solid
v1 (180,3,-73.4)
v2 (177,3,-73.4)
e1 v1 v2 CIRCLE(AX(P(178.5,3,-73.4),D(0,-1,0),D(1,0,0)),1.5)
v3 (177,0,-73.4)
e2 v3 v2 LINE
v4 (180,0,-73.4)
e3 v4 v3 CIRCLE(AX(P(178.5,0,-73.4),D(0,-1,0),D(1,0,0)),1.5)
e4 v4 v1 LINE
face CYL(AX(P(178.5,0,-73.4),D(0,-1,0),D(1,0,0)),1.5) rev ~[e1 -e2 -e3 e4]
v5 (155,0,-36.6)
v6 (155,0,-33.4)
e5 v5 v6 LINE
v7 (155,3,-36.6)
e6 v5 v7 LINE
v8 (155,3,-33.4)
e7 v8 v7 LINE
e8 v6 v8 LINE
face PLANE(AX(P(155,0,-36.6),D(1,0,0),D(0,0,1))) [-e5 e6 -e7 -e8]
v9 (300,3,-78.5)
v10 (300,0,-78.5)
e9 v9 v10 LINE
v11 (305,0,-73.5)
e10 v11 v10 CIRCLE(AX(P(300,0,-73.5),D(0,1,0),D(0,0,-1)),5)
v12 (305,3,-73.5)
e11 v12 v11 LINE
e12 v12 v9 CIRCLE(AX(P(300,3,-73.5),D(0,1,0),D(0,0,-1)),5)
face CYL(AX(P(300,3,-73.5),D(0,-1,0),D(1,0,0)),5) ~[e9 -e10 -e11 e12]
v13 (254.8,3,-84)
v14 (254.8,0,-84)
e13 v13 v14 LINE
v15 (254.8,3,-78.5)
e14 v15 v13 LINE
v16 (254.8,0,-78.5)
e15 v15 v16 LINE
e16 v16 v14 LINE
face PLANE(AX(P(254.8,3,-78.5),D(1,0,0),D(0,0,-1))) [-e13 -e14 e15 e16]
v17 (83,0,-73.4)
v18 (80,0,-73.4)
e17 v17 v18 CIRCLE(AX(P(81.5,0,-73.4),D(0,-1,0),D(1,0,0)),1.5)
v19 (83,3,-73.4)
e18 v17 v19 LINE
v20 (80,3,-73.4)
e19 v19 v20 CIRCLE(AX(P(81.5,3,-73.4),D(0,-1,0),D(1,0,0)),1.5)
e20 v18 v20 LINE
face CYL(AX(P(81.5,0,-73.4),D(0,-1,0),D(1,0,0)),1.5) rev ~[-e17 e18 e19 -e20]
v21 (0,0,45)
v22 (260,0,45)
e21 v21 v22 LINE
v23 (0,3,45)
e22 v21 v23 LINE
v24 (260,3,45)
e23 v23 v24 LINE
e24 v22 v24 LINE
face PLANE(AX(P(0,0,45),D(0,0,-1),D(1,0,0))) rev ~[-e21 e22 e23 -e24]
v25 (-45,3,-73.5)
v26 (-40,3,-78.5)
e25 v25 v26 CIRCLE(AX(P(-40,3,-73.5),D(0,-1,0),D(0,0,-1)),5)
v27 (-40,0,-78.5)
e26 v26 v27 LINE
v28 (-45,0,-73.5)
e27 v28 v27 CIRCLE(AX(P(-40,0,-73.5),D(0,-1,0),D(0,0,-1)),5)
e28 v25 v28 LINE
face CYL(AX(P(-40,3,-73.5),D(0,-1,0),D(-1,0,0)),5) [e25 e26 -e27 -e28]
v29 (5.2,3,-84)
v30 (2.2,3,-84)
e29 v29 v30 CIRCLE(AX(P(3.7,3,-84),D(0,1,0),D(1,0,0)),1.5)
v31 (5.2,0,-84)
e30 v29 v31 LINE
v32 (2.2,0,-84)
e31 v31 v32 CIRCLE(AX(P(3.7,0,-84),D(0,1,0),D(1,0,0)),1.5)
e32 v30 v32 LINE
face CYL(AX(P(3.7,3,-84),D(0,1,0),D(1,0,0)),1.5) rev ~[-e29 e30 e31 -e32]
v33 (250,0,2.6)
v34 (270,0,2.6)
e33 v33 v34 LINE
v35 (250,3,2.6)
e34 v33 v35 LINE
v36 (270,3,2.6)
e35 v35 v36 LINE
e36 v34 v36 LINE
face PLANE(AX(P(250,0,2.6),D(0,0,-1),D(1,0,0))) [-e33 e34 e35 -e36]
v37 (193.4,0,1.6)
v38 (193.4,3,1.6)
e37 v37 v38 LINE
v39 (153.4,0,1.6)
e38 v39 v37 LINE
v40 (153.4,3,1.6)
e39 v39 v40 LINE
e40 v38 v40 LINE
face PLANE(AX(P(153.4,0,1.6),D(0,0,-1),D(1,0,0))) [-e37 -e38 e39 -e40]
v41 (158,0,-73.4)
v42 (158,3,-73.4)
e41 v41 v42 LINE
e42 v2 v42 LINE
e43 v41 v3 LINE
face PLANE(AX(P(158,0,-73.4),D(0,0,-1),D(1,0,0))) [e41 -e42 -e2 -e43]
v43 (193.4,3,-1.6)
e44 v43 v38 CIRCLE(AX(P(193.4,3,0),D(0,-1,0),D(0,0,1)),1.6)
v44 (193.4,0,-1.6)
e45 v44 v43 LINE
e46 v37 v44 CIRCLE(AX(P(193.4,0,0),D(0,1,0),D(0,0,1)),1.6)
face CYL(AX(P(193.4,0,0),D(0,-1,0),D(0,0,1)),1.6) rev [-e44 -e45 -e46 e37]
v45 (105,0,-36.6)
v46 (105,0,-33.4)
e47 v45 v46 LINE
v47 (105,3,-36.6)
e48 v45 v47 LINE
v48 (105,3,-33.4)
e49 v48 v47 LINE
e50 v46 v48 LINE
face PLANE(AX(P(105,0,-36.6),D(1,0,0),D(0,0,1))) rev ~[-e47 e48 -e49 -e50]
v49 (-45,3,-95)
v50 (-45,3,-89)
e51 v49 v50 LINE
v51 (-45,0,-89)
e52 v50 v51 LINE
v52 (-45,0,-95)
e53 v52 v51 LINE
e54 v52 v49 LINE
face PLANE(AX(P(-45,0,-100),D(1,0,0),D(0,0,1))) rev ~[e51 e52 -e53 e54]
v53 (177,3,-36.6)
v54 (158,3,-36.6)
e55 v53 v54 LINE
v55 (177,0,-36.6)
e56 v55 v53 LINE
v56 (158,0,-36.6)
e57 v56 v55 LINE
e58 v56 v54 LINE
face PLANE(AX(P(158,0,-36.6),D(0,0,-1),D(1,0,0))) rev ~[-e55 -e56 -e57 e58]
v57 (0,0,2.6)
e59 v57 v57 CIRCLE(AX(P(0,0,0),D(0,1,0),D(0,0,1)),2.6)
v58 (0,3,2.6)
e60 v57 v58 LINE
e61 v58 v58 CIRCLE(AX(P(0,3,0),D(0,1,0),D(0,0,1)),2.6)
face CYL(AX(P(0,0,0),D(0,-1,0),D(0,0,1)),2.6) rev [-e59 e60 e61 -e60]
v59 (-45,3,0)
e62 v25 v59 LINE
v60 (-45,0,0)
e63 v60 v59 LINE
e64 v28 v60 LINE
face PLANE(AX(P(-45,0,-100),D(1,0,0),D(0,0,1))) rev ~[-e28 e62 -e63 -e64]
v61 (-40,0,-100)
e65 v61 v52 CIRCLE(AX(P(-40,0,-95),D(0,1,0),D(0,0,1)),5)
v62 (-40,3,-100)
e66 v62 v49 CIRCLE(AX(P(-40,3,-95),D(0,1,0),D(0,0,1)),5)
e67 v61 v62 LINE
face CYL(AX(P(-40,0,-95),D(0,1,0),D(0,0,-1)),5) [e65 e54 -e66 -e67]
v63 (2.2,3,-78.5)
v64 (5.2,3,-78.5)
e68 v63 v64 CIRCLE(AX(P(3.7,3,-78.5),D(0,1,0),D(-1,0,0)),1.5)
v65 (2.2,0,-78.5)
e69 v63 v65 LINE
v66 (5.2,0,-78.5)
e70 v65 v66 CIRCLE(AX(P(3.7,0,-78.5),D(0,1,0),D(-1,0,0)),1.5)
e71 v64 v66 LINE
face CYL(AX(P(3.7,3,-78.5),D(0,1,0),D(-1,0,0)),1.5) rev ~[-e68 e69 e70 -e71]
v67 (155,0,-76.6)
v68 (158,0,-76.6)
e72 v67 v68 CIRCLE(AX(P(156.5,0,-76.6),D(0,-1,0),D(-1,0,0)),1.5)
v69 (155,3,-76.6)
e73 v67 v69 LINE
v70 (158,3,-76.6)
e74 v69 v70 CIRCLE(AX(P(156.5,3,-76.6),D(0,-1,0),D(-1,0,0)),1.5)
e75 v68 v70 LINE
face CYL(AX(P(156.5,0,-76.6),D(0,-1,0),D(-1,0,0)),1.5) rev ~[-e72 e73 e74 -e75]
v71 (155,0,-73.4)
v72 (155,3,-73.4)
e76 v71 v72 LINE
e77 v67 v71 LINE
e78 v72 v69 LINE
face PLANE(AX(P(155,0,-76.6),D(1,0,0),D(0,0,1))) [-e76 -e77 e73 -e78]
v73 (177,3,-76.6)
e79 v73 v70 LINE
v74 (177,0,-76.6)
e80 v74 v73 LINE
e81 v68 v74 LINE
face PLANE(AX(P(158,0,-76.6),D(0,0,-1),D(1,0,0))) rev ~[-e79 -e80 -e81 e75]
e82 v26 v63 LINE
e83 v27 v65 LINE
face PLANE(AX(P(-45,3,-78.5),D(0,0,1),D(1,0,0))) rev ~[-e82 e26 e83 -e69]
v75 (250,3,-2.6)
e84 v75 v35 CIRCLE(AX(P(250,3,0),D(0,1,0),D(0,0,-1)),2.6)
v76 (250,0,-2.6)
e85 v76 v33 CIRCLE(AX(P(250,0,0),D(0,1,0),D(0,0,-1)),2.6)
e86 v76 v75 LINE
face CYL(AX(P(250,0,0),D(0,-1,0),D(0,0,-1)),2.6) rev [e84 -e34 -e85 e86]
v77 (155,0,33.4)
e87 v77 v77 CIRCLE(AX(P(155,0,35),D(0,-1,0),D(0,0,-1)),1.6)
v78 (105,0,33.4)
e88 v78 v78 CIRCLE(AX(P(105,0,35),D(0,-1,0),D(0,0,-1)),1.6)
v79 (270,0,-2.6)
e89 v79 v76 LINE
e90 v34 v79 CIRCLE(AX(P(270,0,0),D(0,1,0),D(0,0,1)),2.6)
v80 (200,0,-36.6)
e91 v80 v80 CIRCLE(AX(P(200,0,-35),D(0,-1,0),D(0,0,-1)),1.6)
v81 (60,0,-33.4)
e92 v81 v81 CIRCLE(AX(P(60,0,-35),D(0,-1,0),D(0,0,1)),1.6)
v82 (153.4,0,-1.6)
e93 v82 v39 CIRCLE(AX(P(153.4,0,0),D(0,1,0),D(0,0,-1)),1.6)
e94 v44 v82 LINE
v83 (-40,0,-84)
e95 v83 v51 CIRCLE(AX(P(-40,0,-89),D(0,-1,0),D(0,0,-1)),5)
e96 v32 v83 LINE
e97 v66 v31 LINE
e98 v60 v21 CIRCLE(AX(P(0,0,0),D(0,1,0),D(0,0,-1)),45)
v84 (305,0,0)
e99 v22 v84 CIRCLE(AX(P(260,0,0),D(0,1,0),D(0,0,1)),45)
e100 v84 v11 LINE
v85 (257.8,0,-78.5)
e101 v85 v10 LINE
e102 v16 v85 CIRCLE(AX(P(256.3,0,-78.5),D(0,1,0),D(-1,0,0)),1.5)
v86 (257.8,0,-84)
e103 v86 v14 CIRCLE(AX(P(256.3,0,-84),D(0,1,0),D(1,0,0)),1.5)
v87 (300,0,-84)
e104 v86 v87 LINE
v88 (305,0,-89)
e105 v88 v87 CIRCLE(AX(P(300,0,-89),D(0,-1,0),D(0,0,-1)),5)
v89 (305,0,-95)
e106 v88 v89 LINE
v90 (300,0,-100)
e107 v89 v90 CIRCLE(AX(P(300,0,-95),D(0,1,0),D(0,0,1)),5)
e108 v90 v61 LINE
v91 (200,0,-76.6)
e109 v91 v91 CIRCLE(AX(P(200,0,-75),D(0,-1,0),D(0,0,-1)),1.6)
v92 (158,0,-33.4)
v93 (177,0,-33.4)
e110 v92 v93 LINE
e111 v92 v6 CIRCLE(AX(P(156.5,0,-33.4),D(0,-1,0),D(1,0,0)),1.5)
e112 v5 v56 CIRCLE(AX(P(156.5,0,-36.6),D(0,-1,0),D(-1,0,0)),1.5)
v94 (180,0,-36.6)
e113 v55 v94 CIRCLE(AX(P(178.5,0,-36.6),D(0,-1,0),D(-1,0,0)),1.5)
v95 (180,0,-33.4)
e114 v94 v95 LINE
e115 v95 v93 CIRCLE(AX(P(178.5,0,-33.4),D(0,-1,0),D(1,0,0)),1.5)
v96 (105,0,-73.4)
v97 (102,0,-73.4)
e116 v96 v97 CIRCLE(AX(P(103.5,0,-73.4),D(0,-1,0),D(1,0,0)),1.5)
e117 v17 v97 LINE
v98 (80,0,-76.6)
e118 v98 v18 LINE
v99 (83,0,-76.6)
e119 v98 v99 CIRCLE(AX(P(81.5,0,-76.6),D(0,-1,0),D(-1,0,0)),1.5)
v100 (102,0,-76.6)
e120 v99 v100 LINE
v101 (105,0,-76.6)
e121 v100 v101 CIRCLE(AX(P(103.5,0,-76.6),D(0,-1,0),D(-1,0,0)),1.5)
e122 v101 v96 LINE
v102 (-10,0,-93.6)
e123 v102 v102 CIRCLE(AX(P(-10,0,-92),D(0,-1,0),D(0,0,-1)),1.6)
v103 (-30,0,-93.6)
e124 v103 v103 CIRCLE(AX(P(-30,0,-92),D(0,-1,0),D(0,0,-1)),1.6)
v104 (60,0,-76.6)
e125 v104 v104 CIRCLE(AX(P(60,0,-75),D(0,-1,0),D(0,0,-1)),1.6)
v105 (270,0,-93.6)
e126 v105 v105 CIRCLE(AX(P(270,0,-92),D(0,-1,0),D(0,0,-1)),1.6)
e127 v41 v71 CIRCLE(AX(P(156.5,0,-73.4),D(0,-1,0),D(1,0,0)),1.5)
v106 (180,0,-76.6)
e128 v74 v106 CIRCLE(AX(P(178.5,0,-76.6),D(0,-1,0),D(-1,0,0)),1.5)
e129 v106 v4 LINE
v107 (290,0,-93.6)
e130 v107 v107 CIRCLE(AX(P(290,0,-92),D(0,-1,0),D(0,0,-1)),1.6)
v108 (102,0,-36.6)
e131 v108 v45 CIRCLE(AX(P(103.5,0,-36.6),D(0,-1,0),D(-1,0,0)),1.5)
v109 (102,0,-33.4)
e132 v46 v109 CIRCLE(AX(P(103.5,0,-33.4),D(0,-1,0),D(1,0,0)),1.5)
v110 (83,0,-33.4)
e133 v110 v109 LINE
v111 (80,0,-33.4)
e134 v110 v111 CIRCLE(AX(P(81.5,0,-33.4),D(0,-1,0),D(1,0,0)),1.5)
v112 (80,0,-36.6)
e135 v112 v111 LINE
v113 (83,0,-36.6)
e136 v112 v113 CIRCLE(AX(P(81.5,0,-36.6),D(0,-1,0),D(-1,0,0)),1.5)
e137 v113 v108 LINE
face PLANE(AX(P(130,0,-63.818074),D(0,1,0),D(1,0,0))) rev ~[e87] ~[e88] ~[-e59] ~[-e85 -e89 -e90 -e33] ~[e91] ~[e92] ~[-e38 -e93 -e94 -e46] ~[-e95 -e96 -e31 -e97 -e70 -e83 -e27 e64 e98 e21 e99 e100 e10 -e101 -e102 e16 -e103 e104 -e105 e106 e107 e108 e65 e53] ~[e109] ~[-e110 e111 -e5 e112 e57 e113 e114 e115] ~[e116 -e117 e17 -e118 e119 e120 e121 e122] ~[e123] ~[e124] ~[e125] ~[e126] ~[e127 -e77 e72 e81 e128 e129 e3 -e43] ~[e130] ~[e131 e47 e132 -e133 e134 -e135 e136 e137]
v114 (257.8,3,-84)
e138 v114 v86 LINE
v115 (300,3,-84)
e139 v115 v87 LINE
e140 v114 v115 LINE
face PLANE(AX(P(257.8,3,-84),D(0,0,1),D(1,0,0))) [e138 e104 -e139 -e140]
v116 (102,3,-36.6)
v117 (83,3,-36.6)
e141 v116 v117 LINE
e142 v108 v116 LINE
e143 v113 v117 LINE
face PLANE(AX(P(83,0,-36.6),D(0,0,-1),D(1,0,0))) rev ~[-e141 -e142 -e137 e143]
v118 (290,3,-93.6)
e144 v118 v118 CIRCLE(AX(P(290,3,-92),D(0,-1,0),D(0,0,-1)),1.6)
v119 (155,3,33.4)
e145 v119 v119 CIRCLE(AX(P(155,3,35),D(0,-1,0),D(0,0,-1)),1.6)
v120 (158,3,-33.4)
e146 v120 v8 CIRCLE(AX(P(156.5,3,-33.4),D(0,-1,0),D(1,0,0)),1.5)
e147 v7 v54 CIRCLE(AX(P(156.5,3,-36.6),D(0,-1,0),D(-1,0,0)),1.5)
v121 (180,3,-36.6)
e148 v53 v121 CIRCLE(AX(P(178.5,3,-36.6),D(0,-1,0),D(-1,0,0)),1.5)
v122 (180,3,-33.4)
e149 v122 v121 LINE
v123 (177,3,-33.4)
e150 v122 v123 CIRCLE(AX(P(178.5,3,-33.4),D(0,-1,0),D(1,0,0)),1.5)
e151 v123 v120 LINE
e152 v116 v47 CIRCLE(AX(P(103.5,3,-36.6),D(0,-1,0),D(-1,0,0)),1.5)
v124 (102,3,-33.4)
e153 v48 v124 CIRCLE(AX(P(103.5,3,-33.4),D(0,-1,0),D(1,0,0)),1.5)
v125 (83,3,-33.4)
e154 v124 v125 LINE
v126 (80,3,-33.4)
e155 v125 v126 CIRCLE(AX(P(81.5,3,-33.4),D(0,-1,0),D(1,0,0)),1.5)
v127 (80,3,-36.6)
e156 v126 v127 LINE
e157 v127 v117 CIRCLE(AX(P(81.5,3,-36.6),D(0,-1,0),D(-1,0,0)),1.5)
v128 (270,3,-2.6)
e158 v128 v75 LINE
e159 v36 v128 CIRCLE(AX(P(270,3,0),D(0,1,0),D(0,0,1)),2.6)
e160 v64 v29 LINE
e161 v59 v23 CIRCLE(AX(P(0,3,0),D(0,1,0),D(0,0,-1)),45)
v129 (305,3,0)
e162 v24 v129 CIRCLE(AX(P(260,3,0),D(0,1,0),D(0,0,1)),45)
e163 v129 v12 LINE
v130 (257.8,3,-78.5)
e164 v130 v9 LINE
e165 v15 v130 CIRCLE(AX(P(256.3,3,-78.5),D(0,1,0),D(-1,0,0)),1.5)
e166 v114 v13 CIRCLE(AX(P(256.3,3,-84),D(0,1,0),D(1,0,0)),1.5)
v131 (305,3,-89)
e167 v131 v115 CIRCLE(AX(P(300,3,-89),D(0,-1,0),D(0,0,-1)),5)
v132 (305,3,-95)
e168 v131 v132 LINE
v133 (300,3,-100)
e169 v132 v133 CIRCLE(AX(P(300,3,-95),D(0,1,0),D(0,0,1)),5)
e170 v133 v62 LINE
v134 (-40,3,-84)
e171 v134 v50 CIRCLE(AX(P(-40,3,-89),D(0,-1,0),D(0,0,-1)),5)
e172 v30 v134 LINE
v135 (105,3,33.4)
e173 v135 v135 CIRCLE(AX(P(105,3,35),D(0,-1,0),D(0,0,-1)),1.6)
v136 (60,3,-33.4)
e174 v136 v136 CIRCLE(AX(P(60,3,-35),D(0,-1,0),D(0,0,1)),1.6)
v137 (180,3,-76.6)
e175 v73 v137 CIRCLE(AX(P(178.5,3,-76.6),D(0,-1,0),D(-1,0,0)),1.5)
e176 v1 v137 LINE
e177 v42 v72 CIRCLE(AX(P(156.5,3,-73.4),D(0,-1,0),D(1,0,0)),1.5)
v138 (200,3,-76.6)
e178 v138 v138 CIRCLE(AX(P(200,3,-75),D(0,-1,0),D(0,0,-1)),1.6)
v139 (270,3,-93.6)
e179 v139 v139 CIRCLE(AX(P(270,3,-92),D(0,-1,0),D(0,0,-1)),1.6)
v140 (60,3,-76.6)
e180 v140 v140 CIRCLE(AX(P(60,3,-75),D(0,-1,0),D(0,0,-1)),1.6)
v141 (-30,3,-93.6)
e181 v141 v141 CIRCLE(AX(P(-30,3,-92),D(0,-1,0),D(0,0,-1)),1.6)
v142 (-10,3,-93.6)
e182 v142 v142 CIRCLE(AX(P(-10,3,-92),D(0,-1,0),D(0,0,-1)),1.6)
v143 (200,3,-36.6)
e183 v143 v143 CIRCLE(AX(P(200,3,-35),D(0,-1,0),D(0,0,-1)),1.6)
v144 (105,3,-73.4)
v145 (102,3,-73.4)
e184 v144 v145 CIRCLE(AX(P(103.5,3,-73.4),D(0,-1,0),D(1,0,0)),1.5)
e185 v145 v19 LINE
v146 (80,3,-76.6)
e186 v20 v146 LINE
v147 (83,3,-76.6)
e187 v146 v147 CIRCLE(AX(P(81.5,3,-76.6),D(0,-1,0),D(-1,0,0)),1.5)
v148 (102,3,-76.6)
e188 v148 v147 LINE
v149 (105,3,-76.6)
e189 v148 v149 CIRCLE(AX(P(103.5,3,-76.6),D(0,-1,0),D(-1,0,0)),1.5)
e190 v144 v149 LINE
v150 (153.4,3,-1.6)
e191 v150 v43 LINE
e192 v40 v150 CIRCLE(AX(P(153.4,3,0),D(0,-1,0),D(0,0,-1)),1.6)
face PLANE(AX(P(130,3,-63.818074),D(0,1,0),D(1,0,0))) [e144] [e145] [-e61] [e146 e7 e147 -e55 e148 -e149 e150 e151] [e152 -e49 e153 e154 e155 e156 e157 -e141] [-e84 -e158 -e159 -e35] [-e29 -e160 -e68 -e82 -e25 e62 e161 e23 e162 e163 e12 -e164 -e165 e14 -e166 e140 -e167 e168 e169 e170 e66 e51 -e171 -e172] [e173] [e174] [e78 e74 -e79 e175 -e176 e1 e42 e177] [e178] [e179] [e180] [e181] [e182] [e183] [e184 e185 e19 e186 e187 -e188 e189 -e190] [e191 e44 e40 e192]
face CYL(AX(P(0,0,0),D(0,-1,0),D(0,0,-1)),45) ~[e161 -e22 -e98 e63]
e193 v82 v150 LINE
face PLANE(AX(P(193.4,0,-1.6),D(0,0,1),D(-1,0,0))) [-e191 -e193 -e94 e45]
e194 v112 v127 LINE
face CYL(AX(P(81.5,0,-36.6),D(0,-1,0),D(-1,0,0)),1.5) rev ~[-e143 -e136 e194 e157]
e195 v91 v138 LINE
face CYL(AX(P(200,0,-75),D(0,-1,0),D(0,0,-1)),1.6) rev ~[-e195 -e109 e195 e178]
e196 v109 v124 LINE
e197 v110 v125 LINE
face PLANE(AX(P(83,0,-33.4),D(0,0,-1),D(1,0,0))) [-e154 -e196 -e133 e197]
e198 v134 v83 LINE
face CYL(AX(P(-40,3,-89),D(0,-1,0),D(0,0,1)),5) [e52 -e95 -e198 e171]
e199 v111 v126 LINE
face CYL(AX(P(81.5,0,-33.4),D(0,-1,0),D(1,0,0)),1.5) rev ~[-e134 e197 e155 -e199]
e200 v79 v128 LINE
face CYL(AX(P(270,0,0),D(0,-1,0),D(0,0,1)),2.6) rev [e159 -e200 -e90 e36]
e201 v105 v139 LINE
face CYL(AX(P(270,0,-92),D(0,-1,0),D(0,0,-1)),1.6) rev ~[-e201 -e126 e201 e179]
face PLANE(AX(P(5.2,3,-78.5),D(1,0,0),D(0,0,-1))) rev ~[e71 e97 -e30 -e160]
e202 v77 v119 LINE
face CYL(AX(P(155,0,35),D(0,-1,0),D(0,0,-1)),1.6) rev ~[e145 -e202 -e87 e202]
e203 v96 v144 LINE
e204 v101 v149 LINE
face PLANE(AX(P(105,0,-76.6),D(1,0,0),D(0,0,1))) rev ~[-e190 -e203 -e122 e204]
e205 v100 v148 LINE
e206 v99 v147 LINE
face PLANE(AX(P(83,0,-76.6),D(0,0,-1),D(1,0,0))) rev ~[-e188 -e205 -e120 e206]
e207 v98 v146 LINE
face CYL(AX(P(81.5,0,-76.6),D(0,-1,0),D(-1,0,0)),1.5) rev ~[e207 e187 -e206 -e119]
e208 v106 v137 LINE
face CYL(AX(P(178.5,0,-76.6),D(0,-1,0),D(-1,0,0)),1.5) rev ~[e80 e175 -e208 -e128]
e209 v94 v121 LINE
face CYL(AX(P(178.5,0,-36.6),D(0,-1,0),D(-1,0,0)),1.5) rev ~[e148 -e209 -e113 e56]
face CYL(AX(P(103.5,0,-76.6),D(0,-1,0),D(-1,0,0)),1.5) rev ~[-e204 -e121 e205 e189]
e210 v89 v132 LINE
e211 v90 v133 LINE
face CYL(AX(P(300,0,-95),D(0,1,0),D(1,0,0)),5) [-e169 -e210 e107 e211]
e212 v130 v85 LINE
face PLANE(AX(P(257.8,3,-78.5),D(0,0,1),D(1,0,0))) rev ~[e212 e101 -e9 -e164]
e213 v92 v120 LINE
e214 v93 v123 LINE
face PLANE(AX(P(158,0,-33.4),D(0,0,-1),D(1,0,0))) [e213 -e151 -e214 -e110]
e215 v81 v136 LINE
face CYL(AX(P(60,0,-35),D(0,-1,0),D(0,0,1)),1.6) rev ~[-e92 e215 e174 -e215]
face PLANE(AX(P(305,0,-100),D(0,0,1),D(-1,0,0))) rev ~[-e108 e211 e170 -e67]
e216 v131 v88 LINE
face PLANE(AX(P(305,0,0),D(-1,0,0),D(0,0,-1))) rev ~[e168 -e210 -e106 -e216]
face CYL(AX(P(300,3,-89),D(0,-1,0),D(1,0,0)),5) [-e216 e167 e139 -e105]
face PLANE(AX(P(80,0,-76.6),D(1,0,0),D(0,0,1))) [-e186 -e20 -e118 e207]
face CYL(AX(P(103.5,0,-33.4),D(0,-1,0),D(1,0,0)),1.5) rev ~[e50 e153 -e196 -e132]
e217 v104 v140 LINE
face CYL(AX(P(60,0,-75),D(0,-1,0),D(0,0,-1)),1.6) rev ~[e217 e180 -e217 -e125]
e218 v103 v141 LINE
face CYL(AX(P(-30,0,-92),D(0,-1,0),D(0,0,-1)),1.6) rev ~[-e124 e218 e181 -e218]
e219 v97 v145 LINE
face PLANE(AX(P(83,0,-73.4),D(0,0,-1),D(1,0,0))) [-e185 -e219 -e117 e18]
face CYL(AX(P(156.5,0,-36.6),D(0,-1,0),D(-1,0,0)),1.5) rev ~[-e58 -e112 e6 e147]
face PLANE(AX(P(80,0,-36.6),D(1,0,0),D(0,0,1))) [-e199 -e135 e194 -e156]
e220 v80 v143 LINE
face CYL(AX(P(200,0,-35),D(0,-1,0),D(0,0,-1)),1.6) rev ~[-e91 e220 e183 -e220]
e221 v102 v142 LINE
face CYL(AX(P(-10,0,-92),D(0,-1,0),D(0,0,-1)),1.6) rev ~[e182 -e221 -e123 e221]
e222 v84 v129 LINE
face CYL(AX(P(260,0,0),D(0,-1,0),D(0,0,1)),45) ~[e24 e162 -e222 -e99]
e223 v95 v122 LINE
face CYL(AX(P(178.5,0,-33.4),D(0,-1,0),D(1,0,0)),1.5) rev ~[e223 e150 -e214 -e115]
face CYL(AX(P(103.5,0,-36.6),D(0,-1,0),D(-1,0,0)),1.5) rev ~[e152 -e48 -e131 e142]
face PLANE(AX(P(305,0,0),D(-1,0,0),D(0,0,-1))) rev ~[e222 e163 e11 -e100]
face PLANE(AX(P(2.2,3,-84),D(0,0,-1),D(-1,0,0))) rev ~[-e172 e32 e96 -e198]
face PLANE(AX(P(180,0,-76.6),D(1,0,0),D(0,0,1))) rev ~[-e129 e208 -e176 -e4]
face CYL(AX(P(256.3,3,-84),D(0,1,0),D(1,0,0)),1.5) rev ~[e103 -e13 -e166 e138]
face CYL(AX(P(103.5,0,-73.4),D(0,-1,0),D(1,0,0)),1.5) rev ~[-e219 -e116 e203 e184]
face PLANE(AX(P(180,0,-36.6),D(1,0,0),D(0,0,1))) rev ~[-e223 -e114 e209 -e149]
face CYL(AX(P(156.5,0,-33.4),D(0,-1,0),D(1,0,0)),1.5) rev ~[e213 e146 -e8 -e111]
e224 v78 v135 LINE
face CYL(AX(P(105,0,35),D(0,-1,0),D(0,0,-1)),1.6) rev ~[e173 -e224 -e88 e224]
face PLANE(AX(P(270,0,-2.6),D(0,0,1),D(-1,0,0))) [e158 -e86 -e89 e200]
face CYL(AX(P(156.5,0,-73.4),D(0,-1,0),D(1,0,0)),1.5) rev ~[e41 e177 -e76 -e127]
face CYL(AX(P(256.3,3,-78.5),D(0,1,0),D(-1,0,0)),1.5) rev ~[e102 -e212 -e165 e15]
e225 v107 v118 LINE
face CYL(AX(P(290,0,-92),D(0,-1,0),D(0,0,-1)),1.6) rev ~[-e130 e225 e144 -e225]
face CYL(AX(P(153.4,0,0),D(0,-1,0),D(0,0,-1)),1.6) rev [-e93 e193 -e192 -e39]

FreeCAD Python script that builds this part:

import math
import FreeCAD as App
import Part
import Sketcher

V = App.Vector
Q = App.Units.Quantity


def edges_at(feature, points):
    """Names of the edges that pass closest to the given points."""
    edges = feature.Shape.Edges
    near = lambda p: min(range(len(edges)), key=lambda i: edges[i].distToShape(Part.Vertex(*p))[0])
    return sorted({f"Edge{near(p) + 1}" for p in points})

doc = App.newDocument("Part")
body = doc.addObject("PartDesign::Body", "Body")

# Sketch on XZ plane
sketch1 = body.newObject("Sketcher::SketchObject", "Sketch")
sketch1.AttachmentSupport = (doc.getObject("XZ_Plane"), [""])
sketch1.MapMode = "FlatFace"
sketch1.addGeometry(Part.LineSegment(V(0, 45, 0), V(260, 45, 0)), False)
sketch1.addGeometry(Part.ArcOfCircle(Part.Circle(V(260, 0, 0), V(0, 0, 1), 45), math.radians(0), math.radians(90)), False)
sketch1.addGeometry(Part.LineSegment(V(305, 0, 0), V(305, -100, 0)), False)
sketch1.addGeometry(Part.LineSegment(V(305, -100, 0), V(-45, -100, 0)), False)
sketch1.addGeometry(Part.LineSegment(V(-45, -100, 0), V(-45, 0, 0)), False)
sketch1.addGeometry(Part.ArcOfCircle(Part.Circle(V(0, 0, 0), V(0, 0, 1), 45), math.radians(90), math.radians(180)), False)
sketch1.addGeometry(Part.Circle(V(0, 0, 0), V(0, 0, 1), 2.6), False)
sketch1.addGeometry(Part.ArcOfCircle(Part.Circle(V(250, 0, 0), V(0, 0, 1), 2.6), math.radians(90), math.radians(270)), False)
sketch1.addGeometry(Part.LineSegment(V(250, -2.6, 0), V(270, -2.6, 0)), False)
sketch1.addGeometry(Part.ArcOfCircle(Part.Circle(V(270, 0, 0), V(0, 0, 1), 2.6), math.radians(-90), math.radians(90)), False)
sketch1.addGeometry(Part.LineSegment(V(270, 2.6, 0), V(250, 2.6, 0)), False)
sketch1.addConstraint(Sketcher.Constraint("Tangent", 0, 2, 1, 2))
sketch1.addConstraint(Sketcher.Constraint("Tangent", 1, 1, 2, 1))
sketch1.addConstraint(Sketcher.Constraint("Coincident", 2, 2, 3, 1))
sketch1.addConstraint(Sketcher.Constraint("Coincident", 3, 2, 4, 1))
sketch1.addConstraint(Sketcher.Constraint("Tangent", 4, 2, 5, 2))
sketch1.addConstraint(Sketcher.Constraint("Tangent", 5, 1, 0, 1))
sketch1.addConstraint(Sketcher.Constraint("Tangent", 7, 2, 8, 1))
sketch1.addConstraint(Sketcher.Constraint("Tangent", 8, 2, 9, 1))
sketch1.addConstraint(Sketcher.Constraint("Tangent", 9, 2, 10, 1))
sketch1.addConstraint(Sketcher.Constraint("Tangent", 10, 2, 7, 1))
sketch1.addConstraint(Sketcher.Constraint("Horizontal", 0))
sketch1.addConstraint(Sketcher.Constraint("Vertical", 2))
sketch1.addConstraint(Sketcher.Constraint("Horizontal", 3))
sketch1.addConstraint(Sketcher.Constraint("Vertical", 4))
sketch1.addConstraint(Sketcher.Constraint("Horizontal", 8))
sketch1.addConstraint(Sketcher.Constraint("Horizontal", 10))
sketch1.addConstraint(Sketcher.Constraint("Coincident", 5, 3, -1, 1))
sketch1.addConstraint(Sketcher.Constraint("Coincident", 6, 3, -1, 1))
sketch1.addConstraint(Sketcher.Constraint("Equal", 1, 5))
sketch1.addConstraint(Sketcher.Constraint("Equal", 6, 7))
sketch1.addConstraint(Sketcher.Constraint("PointOnObject", 7, 3, -1))
sketch1.addConstraint(Sketcher.Constraint("Radius", 1, Q("45 mm")))
sketch1.addConstraint(Sketcher.Constraint("Diameter", 6, Q("5.2 mm")))
sketch1.addConstraint(Sketcher.Constraint("DistanceX", 0, 1, 0, 2, Q("260 mm")))
sketch1.addConstraint(Sketcher.Constraint("DistanceX", 8, 1, 8, 2, Q("20 mm")))
sketch1.addConstraint(Sketcher.Constraint("DistanceY", 2, 2, 2, 1, Q("100 mm")))
sketch1.addConstraint(Sketcher.Constraint("DistanceX", -1, 1, 7, 3, Q("250 mm")))
pad1 = body.newObject("PartDesign::Pad", "Pad")
pad1.Profile = sketch1
pad1.Length = 3
pad1.Reversed = True

# Sketch on XZ plane
sketch2 = body.newObject("Sketcher::SketchObject", "Sketch001")
sketch2.AttachmentSupport = (doc.getObject("XZ_Plane"), [""])
sketch2.MapMode = "FlatFace"
sketch2.addGeometry(Part.LineSegment(V(80, -33.4, 0), V(80, -36.6, 0)), False)
sketch2.addGeometry(Part.ArcOfCircle(Part.Circle(V(81.5, -36.6, 0), V(0, 0, 1), 1.5), math.radians(180), math.radians(360)), False)
sketch2.addGeometry(Part.LineSegment(V(83, -36.6, 0), V(102, -36.6, 0)), False)
sketch2.addGeometry(Part.ArcOfCircle(Part.Circle(V(103.5, -36.6, 0), V(0, 0, 1), 1.5), math.radians(180), math.radians(360)), False)
sketch2.addGeometry(Part.LineSegment(V(105, -36.6, 0), V(105, -33.4, 0)), False)
sketch2.addGeometry(Part.ArcOfCircle(Part.Circle(V(103.5, -33.4, 0), V(0, 0, 1), 1.5), math.radians(0), math.radians(180)), False)
sketch2.addGeometry(Part.LineSegment(V(102, -33.4, 0), V(83, -33.4, 0)), False)
sketch2.addGeometry(Part.ArcOfCircle(Part.Circle(V(81.5, -33.4, 0), V(0, 0, 1), 1.5), math.radians(0), math.radians(180)), False)
sketch2.addGeometry(Part.ArcOfCircle(Part.Circle(V(81.5, -73.4, 0), V(0, 0, 1), 1.5), math.radians(0), math.radians(180)), False)
sketch2.addGeometry(Part.LineSegment(V(80, -73.4, 0), V(80, -76.6, 0)), False)
sketch2.addGeometry(Part.ArcOfCircle(Part.Circle(V(81.5, -76.6, 0), V(0, 0, 1), 1.5), math.radians(180), math.radians(360)), False)
sketch2.addGeometry(Part.LineSegment(V(83, -76.6, 0), V(102, -76.6, 0)), False)
sketch2.addGeometry(Part.ArcOfCircle(Part.Circle(V(103.5, -76.6, 0), V(0, 0, 1), 1.5), math.radians(180), math.radians(360)), False)
sketch2.addGeometry(Part.LineSegment(V(105, -76.6, 0), V(105, -73.4, 0)), False)
sketch2.addGeometry(Part.ArcOfCircle(Part.Circle(V(103.5, -73.4, 0), V(0, 0, 1), 1.5), math.radians(0), math.radians(180)), False)
sketch2.addGeometry(Part.LineSegment(V(102, -73.4, 0), V(83, -73.4, 0)), False)
sketch2.addGeometry(Part.ArcOfCircle(Part.Circle(V(156.5, -33.4, 0), V(0, 0, 1), 1.5), math.radians(0), math.radians(180)), False)
sketch2.addGeometry(Part.LineSegment(V(155, -33.4, 0), V(155, -36.6, 0)), False)
sketch2.addGeometry(Part.ArcOfCircle(Part.Circle(V(156.5, -36.6, 0), V(0, 0, 1), 1.5), math.radians(180), math.radians(360)), False)
sketch2.addGeometry(Part.LineSegment(V(158, -36.6, 0), V(177, -36.6, 0)), False)
sketch2.addGeometry(Part.ArcOfCircle(Part.Circle(V(178.5, -36.6, 0), V(0, 0, 1), 1.5), math.radians(180), math.radians(360)), False)
sketch2.addGeometry(Part.LineSegment(V(180, -36.6, 0), V(180, -33.4, 0)), False)
sketch2.addGeometry(Part.ArcOfCircle(Part.Circle(V(178.5, -33.4, 0), V(0, 0, 1), 1.5), math.radians(0), math.radians(180)), False)
sketch2.addGeometry(Part.LineSegment(V(177, -33.4, 0), V(158, -33.4, 0)), False)
sketch2.addGeometry(Part.ArcOfCircle(Part.Circle(V(156.5, -73.4, 0), V(0, 0, 1), 1.5), math.radians(0), math.radians(180)), False)
sketch2.addGeometry(Part.LineSegment(V(155, -73.4, 0), V(155, -76.6, 0)), False)
sketch2.addGeometry(Part.ArcOfCircle(Part.Circle(V(156.5, -76.6, 0), V(0, 0, 1), 1.5), math.radians(180), math.radians(360)), False)
sketch2.addGeometry(Part.LineSegment(V(158, -76.6, 0), V(177, -76.6, 0)), False)
sketch2.addGeometry(Part.ArcOfCircle(Part.Circle(V(178.5, -76.6, 0), V(0, 0, 1), 1.5), math.radians(180), math.radians(360)), False)
sketch2.addGeometry(Part.LineSegment(V(180, -76.6, 0), V(180, -73.4, 0)), False)
sketch2.addGeometry(Part.ArcOfCircle(Part.Circle(V(178.5, -73.4, 0), V(0, 0, 1), 1.5), math.radians(0), math.radians(180)), False)
sketch2.addGeometry(Part.LineSegment(V(177, -73.4, 0), V(158, -73.4, 0)), False)
sketch2.addGeometry(Part.Circle(V(200, -75, 0), V(0, 0, 1), 1.6), False)
sketch2.addGeometry(Part.Circle(V(290, -92, 0), V(0, 0, 1), 1.6), False)
sketch2.addGeometry(Part.Circle(V(270, -92, 0), V(0, 0, 1), 1.6), False)
sketch2.addGeometry(Part.Circle(V(60, -35, 0), V(0, 0, 1), 1.6), False)
sketch2.addGeometry(Part.Circle(V(60, -75, 0), V(0, 0, 1), 1.6), False)
sketch2.addGeometry(Part.Circle(V(-10, -92, 0), V(0, 0, 1), 1.6), False)
sketch2.addGeometry(Part.Circle(V(-30, -92, 0), V(0, 0, 1), 1.6), False)
sketch2.addGeometry(Part.Circle(V(200, -35, 0), V(0, 0, 1), 1.6), False)
sketch2.addConstraint(Sketcher.Constraint("Tangent", 0, 2, 1, 1))
sketch2.addConstraint(Sketcher.Constraint("Coincident", 1, 2, 2, 1))
sketch2.addConstraint(Sketcher.Constraint("Coincident", 2, 2, 3, 1))
sketch2.addConstraint(Sketcher.Constraint("Tangent", 3, 2, 4, 1))
sketch2.addConstraint(Sketcher.Constraint("Tangent", 4, 2, 5, 1))
sketch2.addConstraint(Sketcher.Constraint("Coincident", 5, 2, 6, 1))
sketch2.addConstraint(Sketcher.Constraint("Coincident", 6, 2, 7, 1))
sketch2.addConstraint(Sketcher.Constraint("Tangent", 7, 2, 0, 1))
sketch2.addConstraint(Sketcher.Constraint("Tangent", 8, 2, 9, 1))
sketch2.addConstraint(Sketcher.Constraint("Tangent", 9, 2, 10, 1))
sketch2.addConstraint(Sketcher.Constraint("Coincident", 10, 2, 11, 1))
sketch2.addConstraint(Sketcher.Constraint("Coincident", 11, 2, 12, 1))
sketch2.addConstraint(Sketcher.Constraint("Tangent", 12, 2, 13, 1))
sketch2.addConstraint(Sketcher.Constraint("Tangent", 13, 2, 14, 1))
sketch2.addConstraint(Sketcher.Constraint("Coincident", 14, 2, 15, 1))
sketch2.addConstraint(Sketcher.Constraint("Coincident", 15, 2, 8, 1))
sketch2.addConstraint(Sketcher.Constraint("Tangent", 16, 2, 17, 1))
sketch2.addConstraint(Sketcher.Constraint("Tangent", 17, 2, 18, 1))
sketch2.addConstraint(Sketcher.Constraint("Coincident", 18, 2, 19, 1))
sketch2.addConstraint(Sketcher.Constraint("Coincident", 19, 2, 20, 1))
sketch2.addConstraint(Sketcher.Constraint("Tangent", 20, 2, 21, 1))
sketch2.addConstraint(Sketcher.Constraint("Tangent", 21, 2, 22, 1))
sketch2.addConstraint(Sketcher.Constraint("Coincident", 22, 2, 23, 1))
sketch2.addConstraint(Sketcher.Constraint("Coincident", 23, 2, 16, 1))
sketch2.addConstraint(Sketcher.Constraint("Tangent", 24, 2, 25, 1))
sketch2.addConstraint(Sketcher.Constraint("Tangent", 25, 2, 26, 1))
sketch2.addConstraint(Sketcher.Constraint("Coincident", 26, 2, 27, 1))
sketch2.addConstraint(Sketcher.Constraint("Coincident", 27, 2, 28, 1))
sketch2.addConstraint(Sketcher.Constraint("Tangent", 28, 2, 29, 1))
sketch2.addConstraint(Sketcher.Constraint("Tangent", 29, 2, 30, 1))
sketch2.addConstraint(Sketcher.Constraint("Coincident", 30, 2, 31, 1))
sketch2.addConstraint(Sketcher.Constraint("Coincident", 31, 2, 24, 1))
sketch2.addConstraint(Sketcher.Constraint("Vertical", 0))
sketch2.addConstraint(Sketcher.Constraint("Horizontal", 2))
sketch2.addConstraint(Sketcher.Constraint("Vertical", 4))
sketch2.addConstraint(Sketcher.Constraint("Horizontal", 6))
sketch2.addConstraint(Sketcher.Constraint("Vertical", 9))
sketch2.addConstraint(Sketcher.Constraint("Horizontal", 11))
sketch2.addConstraint(Sketcher.Constraint("Vertical", 13))
sketch2.addConstraint(Sketcher.Constraint("Horizontal", 15))
sketch2.addConstraint(Sketcher.Constraint("Vertical", 17))
sketch2.addConstraint(Sketcher.Constraint("Horizontal", 19))
sketch2.addConstraint(Sketcher.Constraint("Vertical", 21))
sketch2.addConstraint(Sketcher.Constraint("Horizontal", 23))
sketch2.addConstraint(Sketcher.Constraint("Vertical", 25))
sketch2.addConstraint(Sketcher.Constraint("Horizontal", 27))
sketch2.addConstraint(Sketcher.Constraint("Vertical", 29))
sketch2.addConstraint(Sketcher.Constraint("Horizontal", 31))
sketch2.addConstraint(Sketcher.Constraint("Equal", 1, 3))
sketch2.addConstraint(Sketcher.Constraint("Equal", 3, 5))
sketch2.addConstraint(Sketcher.Constraint("Equal", 5, 7))
sketch2.addConstraint(Sketcher.Constraint("Equal", 7, 8))
sketch2.addConstraint(Sketcher.Constraint("Equal", 8, 10))
sketch2.addConstraint(Sketcher.Constraint("Equal", 10, 12))
sketch2.addConstraint(Sketcher.Constraint("Equal", 12, 14))
sketch2.addConstraint(Sketcher.Constraint("Equal", 14, 16))
sketch2.addConstraint(Sketcher.Constraint("Equal", 16, 18))
sketch2.addConstraint(Sketcher.Constraint("Equal", 18, 20))
sketch2.addConstraint(Sketcher.Constraint("Equal", 20, 22))
sketch2.addConstraint(Sketcher.Constraint("Equal", 22, 24))
sketch2.addConstraint(Sketcher.Constraint("Equal", 24, 26))
sketch2.addConstraint(Sketcher.Constraint("Equal", 26, 28))
sketch2.addConstraint(Sketcher.Constraint("Equal", 28, 30))
sketch2.addConstraint(Sketcher.Constraint("Equal", 32, 33))
sketch2.addConstraint(Sketcher.Constraint("Equal", 33, 34))
sketch2.addConstraint(Sketcher.Constraint("Equal", 34, 35))
sketch2.addConstraint(Sketcher.Constraint("Equal", 35, 36))
sketch2.addConstraint(Sketcher.Constraint("Equal", 36, 37))
sketch2.addConstraint(Sketcher.Constraint("Equal", 37, 38))
sketch2.addConstraint(Sketcher.Constraint("Equal", 38, 39))
sketch2.addConstraint(Sketcher.Constraint("Horizontal", 1, 3, 3, 3))
sketch2.addConstraint(Sketcher.Constraint("Horizontal", 5, 3, 7, 3))
sketch2.addConstraint(Sketcher.Constraint("Horizontal", 10, 3, 12, 3))
sketch2.addConstraint(Sketcher.Constraint("Horizontal", 8, 3, 14, 3))
sketch2.addConstraint(Sketcher.Constraint("Horizontal", 7, 3, 16, 3))
sketch2.addConstraint(Sketcher.Constraint("Horizontal", 3, 3, 18, 3))
sketch2.addConstraint(Sketcher.Constraint("Horizontal", 18, 3, 20, 3))
sketch2.addConstraint(Sketcher.Constraint("Horizontal", 16, 3, 22, 3))
sketch2.addConstraint(Sketcher.Constraint("Horizontal", 14, 3, 24, 3))
sketch2.addConstraint(Sketcher.Constraint("Horizontal", 12, 3, 26, 3))
sketch2.addConstraint(Sketcher.Constraint("Horizontal", 26, 3, 28, 3))
sketch2.addConstraint(Sketcher.Constraint("Horizontal", 24, 3, 30, 3))
sketch2.addConstraint(Sketcher.Constraint("Horizontal", 33, 3, 34, 3))
sketch2.addConstraint(Sketcher.Constraint("Horizontal", 32, 3, 36, 3))
sketch2.addConstraint(Sketcher.Constraint("Horizontal", 34, 3, 37, 3))
sketch2.addConstraint(Sketcher.Constraint("Horizontal", 37, 3, 38, 3))
sketch2.addConstraint(Sketcher.Constraint("Horizontal", 35, 3, 39, 3))
sketch2.addConstraint(Sketcher.Constraint("Horizontal", 0, 2, 1, 2))
sketch2.addConstraint(Sketcher.Constraint("Horizontal", 4, 2, 5, 2))
sketch2.addConstraint(Sketcher.Constraint("Horizontal", 9, 2, 10, 2))
sketch2.addConstraint(Sketcher.Constraint("Horizontal", 13, 2, 14, 2))
sketch2.addConstraint(Sketcher.Constraint("Horizontal", 17, 2, 18, 2))
sketch2.addConstraint(Sketcher.Constraint("Horizontal", 21, 2, 22, 2))
sketch2.addConstraint(Sketcher.Constraint("Horizontal", 25, 2, 26, 2))
sketch2.addConstraint(Sketcher.Constraint("Horizontal", 29, 2, 30, 2))
sketch2.addConstraint(Sketcher.Constraint("Vertical", 7, 3, 8, 3))
sketch2.addConstraint(Sketcher.Constraint("Vertical", 5, 3, 12, 3))
sketch2.addConstraint(Sketcher.Constraint("Vertical", 18, 3, 24, 3))
sketch2.addConstraint(Sketcher.Constraint("Vertical", 22, 3, 28, 3))
sketch2.addConstraint(Sketcher.Constraint("Vertical", 35, 3, 36, 3))
sketch2.addConstraint(Sketcher.Constraint("Vertical", 32, 3, 39, 3))
sketch2.addConstraint(Sketcher.Constraint("Equal", 15, 19))
sketch2.addConstraint(Sketcher.Constraint("Equal", 4, 9))
sketch2.addConstraint(Sketcher.Constraint("Diameter", 32, Q("3.2 mm")))
sketch2.addConstraint(Sketcher.Constraint("Radius", 1, Q("1.5 mm")))
sketch2.addConstraint(Sketcher.Constraint("DistanceX", 2, 1, 2, 2, Q("19 mm")))
sketch2.addConstraint(Sketcher.Constraint("DistanceY", 0, 2, 0, 1, Q("3.2 mm")))
sketch2.addConstraint(Sketcher.Constraint("DistanceX", -1, 1, 32, 3, Q("200 mm")))
sketch2.addConstraint(Sketcher.Constraint("DistanceY", 32, 3, -1, 1, Q("75 mm")))
sketch2.addConstraint(Sketcher.Constraint("DistanceX", -1, 1, 33, 3, Q("290 mm")))
sketch2.addConstraint(Sketcher.Constraint("DistanceY", 33, 3, -1, 1, Q("92 mm")))
sketch2.addConstraint(Sketcher.Constraint("DistanceX", -1, 1, 34, 3, Q("270 mm")))
sketch2.addConstraint(Sketcher.Constraint("DistanceX", -1, 1, 35, 3, Q("60 mm")))
sketch2.addConstraint(Sketcher.Constraint("DistanceY", 35, 3, -1, 1, Q("35 mm")))
sketch2.addConstraint(Sketcher.Constraint("DistanceX", 37, 3, -1, 1, Q("10 mm")))
sketch2.addConstraint(Sketcher.Constraint("DistanceX", 38, 3, -1, 1, Q("30 mm")))
sketch2.addConstraint(Sketcher.Constraint("DistanceX", -1, 1, 0, 2, Q("80 mm")))
sketch2.addConstraint(Sketcher.Constraint("DistanceX", -1, 1, 16, 2, Q("155 mm")))
sketch2.addConstraint(Sketcher.Constraint("DistanceY", 8, 3, 7, 3, Q("40 mm")))
sketch2.addConstraint(Sketcher.Constraint("DistanceY", 1, 3, -1, 1, Q("36.6 mm")))
pocket1 = body.newObject("PartDesign::Pocket", "Pocket")
pocket1.Profile = sketch2
pocket1.Length = 10
doc.recompute()

fillet = body.newObject("PartDesign::Fillet", "Fillet")
fillet.Base = (pocket1, edges_at(pocket1, [(-45, 1.5, -100), (305, 1.5, -100)]))
fillet.Radius = 5

# Sketch on XZ plane
sketch3 = body.newObject("Sketcher::SketchObject", "Sketch002")
sketch3.AttachmentSupport = (doc.getObject("XZ_Plane"), [""])
sketch3.MapMode = "FlatFace"
sketch3.addGeometry(Part.Circle(V(105, 35, 0), V(0, 0, 1), 1.6), False)
sketch3.addGeometry(Part.Circle(V(155, 35, 0), V(0, 0, 1), 1.6), False)
sketch3.addGeometry(Part.LineSegment(V(153.4, -1.6, 0), V(193.4, -1.6, 0)), False)
sketch3.addGeometry(Part.ArcOfCircle(Part.Circle(V(193.4, 0, 0), V(0, 0, 1), 1.6), math.radians(-90), math.radians(90)), False)
sketch3.addGeometry(Part.LineSegment(V(193.4, 1.6, 0), V(153.4, 1.6, 0)), False)
sketch3.addGeometry(Part.ArcOfCircle(Part.Circle(V(153.4, 0, 0), V(0, 0, 1), 1.6), math.radians(90), math.radians(270)), False)
sketch3.addConstraint(Sketcher.Constraint("Tangent", 2, 2, 3, 1))
sketch3.addConstraint(Sketcher.Constraint("Tangent", 3, 2, 4, 1))
sketch3.addConstraint(Sketcher.Constraint("Tangent", 4, 2, 5, 1))
sketch3.addConstraint(Sketcher.Constraint("Tangent", 5, 2, 2, 1))
sketch3.addConstraint(Sketcher.Constraint("Horizontal", 2))
sketch3.addConstraint(Sketcher.Constraint("Horizontal", 4))
sketch3.addConstraint(Sketcher.Constraint("Equal", 0, 1))
sketch3.addConstraint(Sketcher.Constraint("Equal", 1, 3))
sketch3.addConstraint(Sketcher.Constraint("PointOnObject", 3, 3, -1))
sketch3.addConstraint(Sketcher.Constraint("Horizontal", 0, 3, 1, 3))
sketch3.addConstraint(Sketcher.Constraint("Diameter", 0, Q("3.2 mm")))
sketch3.addConstraint(Sketcher.Constraint("DistanceX", 2, 1, 2, 2, Q("40 mm")))
sketch3.addConstraint(Sketcher.Constraint("DistanceX", -1, 1, 0, 3, Q("105 mm")))
sketch3.addConstraint(Sketcher.Constraint("DistanceY", -1, 1, 0, 3, Q("35 mm")))
sketch3.addConstraint(Sketcher.Constraint("DistanceX", -1, 1, 1, 3, Q("155 mm")))
sketch3.addConstraint(Sketcher.Constraint("DistanceX", -1, 1, 3, 3, Q("193.4 mm")))
pocket2 = body.newObject("PartDesign::Pocket", "Pocket001")
pocket2.Profile = sketch3
pocket2.Type = "ThroughAll"

# Sketch on XZ plane
sketch4 = body.newObject("Sketcher::SketchObject", "Sketch003")
sketch4.AttachmentSupport = (doc.getObject("XZ_Plane"), [""])
sketch4.MapMode = "FlatFace"
sketch4.AttachmentOffset = App.Placement(V(0, 0, -3), App.Rotation())
sketch4.addGeometry(Part.LineSegment(V(-45, -84, 0), V(-45, -78.5, 0)), False)
sketch4.addGeometry(Part.LineSegment(V(-45, -78.5, 0), V(2.2, -78.5, 0)), False)
sketch4.addGeometry(Part.ArcOfCircle(Part.Circle(V(3.7, -78.5, 0), V(0, 0, 1), 1.5), math.radians(0), math.radians(180)), False)
sketch4.addGeometry(Part.LineSegment(V(5.2, -78.5, 0), V(5.2, -84, 0)), False)
sketch4.addGeometry(Part.ArcOfCircle(Part.Circle(V(3.7, -84, 0), V(0, 0, 1), 1.5), math.radians(180), math.radians(360)), False)
sketch4.addGeometry(Part.LineSegment(V(2.2, -84, 0), V(-45, -84, 0)), False)
sketch4.addGeometry(Part.ArcOfCircle(Part.Circle(V(256.3, -84, 0), V(0, 0, 1), 1.5), math.radians(180), math.radians(360)), False)
sketch4.addGeometry(Part.LineSegment(V(254.8, -84, 0), V(254.8, -78.5, 0)), False)
sketch4.addGeometry(Part.ArcOfCircle(Part.Circle(V(256.3, -78.5, 0), V(0, 0, 1), 1.5), math.radians(0), math.radians(180)), False)
sketch4.addGeometry(Part.LineSegment(V(257.8, -78.5, 0), V(305, -78.5, 0)), False)
sketch4.addGeometry(Part.LineSegment(V(305, -78.5, 0), V(305, -84, 0)), False)
sketch4.addGeometry(Part.LineSegment(V(305, -84, 0), V(257.8, -84, 0)), False)
sketch4.addConstraint(Sketcher.Constraint("Coincident", 0, 2, 1, 1))
sketch4.addConstraint(Sketcher.Constraint("Coincident", 1, 2, 2, 2))
sketch4.addConstraint(Sketcher.Constraint("Tangent", 2, 1, 3, 1))
sketch4.addConstraint(Sketcher.Constraint("Tangent", 3, 2, 4, 2))
sketch4.addConstraint(Sketcher.Constraint("Coincident", 4, 1, 5, 1))
sketch4.addConstraint(Sketcher.Constraint("Coincident", 5, 2, 0, 1))
sketch4.addConstraint(Sketcher.Constraint("Tangent", 6, 1, 7, 1))
sketch4.addConstraint(Sketcher.Constraint("Tangent", 7, 2, 8, 2))
sketch4.addConstraint(Sketcher.Constraint("Coincident", 8, 1, 9, 1))
sketch4.addConstraint(Sketcher.Constraint("Coincident", 9, 2, 10, 1))
sketch4.addConstraint(Sketcher.Constraint("Coincident", 10, 2, 11, 1))
sketch4.addConstraint(Sketcher.Constraint("Coincident", 11, 2, 6, 2))
sketch4.addConstraint(Sketcher.Constraint("Vertical", 0))
sketch4.addConstraint(Sketcher.Constraint("Horizontal", 1))
sketch4.addConstraint(Sketcher.Constraint("Vertical", 3))
sketch4.addConstraint(Sketcher.Constraint("Horizontal", 5))
sketch4.addConstraint(Sketcher.Constraint("Vertical", 7))
sketch4.addConstraint(Sketcher.Constraint("Horizontal", 9))
sketch4.addConstraint(Sketcher.Constraint("Vertical", 10))
sketch4.addConstraint(Sketcher.Constraint("Horizontal", 11))
sketch4.addConstraint(Sketcher.Constraint("Equal", 2, 4))
sketch4.addConstraint(Sketcher.Constraint("Equal", 4, 6))
sketch4.addConstraint(Sketcher.Constraint("Equal", 6, 8))
sketch4.addConstraint(Sketcher.Constraint("Horizontal", 4, 3, 6, 3))
sketch4.addConstraint(Sketcher.Constraint("Horizontal", 2, 3, 8, 3))
sketch4.addConstraint(Sketcher.Constraint("Horizontal", 8, 3, 0, 2))
sketch4.addConstraint(Sketcher.Constraint("Horizontal", 3, 2, 4, 1))
sketch4.addConstraint(Sketcher.Constraint("Horizontal", 7, 2, 8, 1))
sketch4.addConstraint(Sketcher.Constraint("Horizontal", 6, 1, 10, 2))
sketch4.addConstraint(Sketcher.Constraint("Equal", 5, 9))
sketch4.addConstraint(Sketcher.Constraint("Radius", 2, Q("1.5 mm")))
sketch4.addConstraint(Sketcher.Constraint("DistanceX", 1, 1, 1, 2, Q("47.2 mm")))
sketch4.addConstraint(Sketcher.Constraint("DistanceY", 0, 1, 0, 2, Q("5.5 mm")))
sketch4.addConstraint(Sketcher.Constraint("DistanceY", 4, 3, -1, 1, Q("84 mm")))
sketch4.addConstraint(Sketcher.Constraint("DistanceX", 0, 2, -1, 1, Q("45 mm")))
sketch4.addConstraint(Sketcher.Constraint("DistanceX", -1, 1, 9, 2, Q("305 mm")))
pocket3 = body.newObject("PartDesign::Pocket", "Pocket002")
pocket3.Profile = sketch4
pocket3.Type = "ThroughAll"
pocket3.Reversed = True
doc.recompute()

fillet2 = body.newObject("PartDesign::Fillet", "Fillet001")
fillet2.Base = (pocket3, edges_at(pocket3, [
    (-45, 1.5, -78.5),
    (-45, 1.5, -84),
    (305, 1.5, -84),
    (305, 1.5, -78.5),
]))
fillet2.Radius = 5

doc.recompute()
